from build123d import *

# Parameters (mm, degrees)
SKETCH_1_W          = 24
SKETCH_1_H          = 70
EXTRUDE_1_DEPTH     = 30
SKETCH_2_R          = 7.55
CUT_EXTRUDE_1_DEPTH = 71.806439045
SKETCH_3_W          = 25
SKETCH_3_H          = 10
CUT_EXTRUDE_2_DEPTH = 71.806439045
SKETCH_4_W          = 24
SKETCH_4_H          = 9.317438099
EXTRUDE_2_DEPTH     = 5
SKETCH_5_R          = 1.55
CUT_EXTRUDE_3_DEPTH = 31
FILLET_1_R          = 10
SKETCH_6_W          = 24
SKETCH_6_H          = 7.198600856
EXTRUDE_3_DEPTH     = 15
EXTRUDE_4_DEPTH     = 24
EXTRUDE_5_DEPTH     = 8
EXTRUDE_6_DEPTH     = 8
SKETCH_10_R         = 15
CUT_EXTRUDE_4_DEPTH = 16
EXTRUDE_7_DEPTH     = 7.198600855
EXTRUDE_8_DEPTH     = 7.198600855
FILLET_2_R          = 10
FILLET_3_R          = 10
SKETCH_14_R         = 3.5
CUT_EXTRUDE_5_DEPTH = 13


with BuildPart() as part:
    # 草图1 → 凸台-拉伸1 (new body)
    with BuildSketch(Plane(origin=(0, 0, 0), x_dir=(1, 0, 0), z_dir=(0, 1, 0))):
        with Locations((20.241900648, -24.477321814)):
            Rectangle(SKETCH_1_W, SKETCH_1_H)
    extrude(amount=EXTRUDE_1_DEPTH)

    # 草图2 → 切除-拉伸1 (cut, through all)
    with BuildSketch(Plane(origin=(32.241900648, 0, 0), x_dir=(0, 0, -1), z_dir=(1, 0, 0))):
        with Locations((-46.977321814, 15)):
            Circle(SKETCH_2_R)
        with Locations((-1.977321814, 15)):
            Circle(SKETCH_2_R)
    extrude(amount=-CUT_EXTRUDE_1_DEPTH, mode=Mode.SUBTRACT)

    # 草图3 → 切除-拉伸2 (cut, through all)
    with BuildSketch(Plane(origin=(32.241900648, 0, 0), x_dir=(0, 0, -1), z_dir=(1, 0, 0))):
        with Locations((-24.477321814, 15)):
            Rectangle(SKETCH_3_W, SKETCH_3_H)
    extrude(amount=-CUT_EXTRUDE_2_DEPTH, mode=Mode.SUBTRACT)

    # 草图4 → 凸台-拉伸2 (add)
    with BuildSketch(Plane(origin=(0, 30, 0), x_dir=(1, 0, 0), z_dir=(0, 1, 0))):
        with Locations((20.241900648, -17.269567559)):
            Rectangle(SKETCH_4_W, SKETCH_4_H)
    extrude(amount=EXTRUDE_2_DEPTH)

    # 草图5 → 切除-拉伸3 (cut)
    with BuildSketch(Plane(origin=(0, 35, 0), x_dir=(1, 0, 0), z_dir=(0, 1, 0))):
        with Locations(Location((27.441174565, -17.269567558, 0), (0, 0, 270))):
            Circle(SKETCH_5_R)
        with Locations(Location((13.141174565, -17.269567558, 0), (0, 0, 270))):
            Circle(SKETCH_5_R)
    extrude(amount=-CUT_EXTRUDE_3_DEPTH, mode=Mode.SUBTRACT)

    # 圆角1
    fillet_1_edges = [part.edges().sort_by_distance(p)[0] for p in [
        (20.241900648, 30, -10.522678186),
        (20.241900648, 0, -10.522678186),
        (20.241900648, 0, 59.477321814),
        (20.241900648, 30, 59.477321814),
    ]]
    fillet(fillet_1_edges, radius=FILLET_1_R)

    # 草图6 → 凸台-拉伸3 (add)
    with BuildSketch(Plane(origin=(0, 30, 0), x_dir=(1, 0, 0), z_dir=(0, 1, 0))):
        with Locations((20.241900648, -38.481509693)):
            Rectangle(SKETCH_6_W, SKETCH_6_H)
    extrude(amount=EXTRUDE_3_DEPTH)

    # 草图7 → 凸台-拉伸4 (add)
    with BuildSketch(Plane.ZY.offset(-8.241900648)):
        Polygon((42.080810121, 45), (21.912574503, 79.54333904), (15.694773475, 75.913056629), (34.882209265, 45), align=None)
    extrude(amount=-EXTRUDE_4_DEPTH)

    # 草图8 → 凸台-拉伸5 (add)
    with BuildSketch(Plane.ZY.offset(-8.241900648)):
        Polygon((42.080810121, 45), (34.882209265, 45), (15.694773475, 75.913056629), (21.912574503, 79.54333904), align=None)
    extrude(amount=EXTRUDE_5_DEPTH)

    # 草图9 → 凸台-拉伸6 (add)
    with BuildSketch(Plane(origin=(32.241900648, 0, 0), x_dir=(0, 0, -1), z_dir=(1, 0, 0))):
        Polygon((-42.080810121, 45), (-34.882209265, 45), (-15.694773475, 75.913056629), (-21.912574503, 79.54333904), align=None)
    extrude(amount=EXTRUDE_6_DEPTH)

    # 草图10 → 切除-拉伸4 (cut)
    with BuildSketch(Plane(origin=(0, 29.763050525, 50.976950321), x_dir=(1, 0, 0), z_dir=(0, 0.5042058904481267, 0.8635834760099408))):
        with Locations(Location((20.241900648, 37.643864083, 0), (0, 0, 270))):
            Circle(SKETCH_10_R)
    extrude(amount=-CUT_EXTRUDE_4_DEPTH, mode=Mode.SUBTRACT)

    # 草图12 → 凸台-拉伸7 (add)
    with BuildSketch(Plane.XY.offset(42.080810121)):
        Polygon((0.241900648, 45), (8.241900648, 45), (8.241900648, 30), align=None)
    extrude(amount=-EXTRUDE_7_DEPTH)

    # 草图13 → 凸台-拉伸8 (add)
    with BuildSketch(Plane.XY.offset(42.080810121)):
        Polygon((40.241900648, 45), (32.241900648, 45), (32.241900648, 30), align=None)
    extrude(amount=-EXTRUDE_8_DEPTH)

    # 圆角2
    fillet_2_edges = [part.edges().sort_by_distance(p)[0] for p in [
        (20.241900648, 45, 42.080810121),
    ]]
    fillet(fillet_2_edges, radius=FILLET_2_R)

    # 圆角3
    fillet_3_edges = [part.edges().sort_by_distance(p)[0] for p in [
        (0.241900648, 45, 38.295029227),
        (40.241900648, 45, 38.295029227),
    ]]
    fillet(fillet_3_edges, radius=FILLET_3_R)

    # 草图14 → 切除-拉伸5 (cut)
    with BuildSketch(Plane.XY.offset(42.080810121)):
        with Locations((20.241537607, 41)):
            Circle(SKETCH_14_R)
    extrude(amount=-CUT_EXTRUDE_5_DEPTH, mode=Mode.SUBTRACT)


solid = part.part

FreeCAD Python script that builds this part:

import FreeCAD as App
import Part
import Sketcher

V = App.Vector
Q = App.Units.Quantity


def edges_at(feature, points):
    """Names of the edges that pass closest to the given points."""
    edges = feature.Shape.Edges
    near = lambda p: min(range(len(edges)), key=lambda i: edges[i].distToShape(Part.Vertex(*p))[0])
    return sorted({f"Edge{near(p) + 1}" for p in points})

doc = App.newDocument("Part")
body = doc.addObject("PartDesign::Body", "Body")

# Sketch on XZ plane
sketch1 = doc.addObject("Sketcher::SketchObject", "Sketch")
body.addObject(sketch1)
sketch1.AttachmentSupport = (doc.XZ_Plane, [""])
sketch1.MapMode = "FlatFace"
sketch1.addGeometry(Part.LineSegment(V(8, -11, 0), V(8, 59, 0)), False)
sketch1.addGeometry(Part.LineSegment(V(8, 59, 0), V(32, 59, 0)), False)
sketch1.addGeometry(Part.LineSegment(V(32, 59, 0), V(32, -11, 0)), False)
sketch1.addGeometry(Part.LineSegment(V(32, -11, 0), V(8, -11, 0)), False)
sketch1.addConstraint(Sketcher.Constraint("Coincident", 0, 2, 1, 1))
sketch1.addConstraint(Sketcher.Constraint("Coincident", 1, 2, 2, 1))
sketch1.addConstraint(Sketcher.Constraint("Coincident", 2, 2, 3, 1))
sketch1.addConstraint(Sketcher.Constraint("Coincident", 3, 2, 0, 1))
sketch1.addConstraint(Sketcher.Constraint("Vertical", 0))
sketch1.addConstraint(Sketcher.Constraint("Horizontal", 1))
sketch1.addConstraint(Sketcher.Constraint("Vertical", 2))
sketch1.addConstraint(Sketcher.Constraint("Horizontal", 3))
sketch1.addConstraint(Sketcher.Constraint("DistanceX", 1, 1, 1, 2, Q("24 mm")))
sketch1.addConstraint(Sketcher.Constraint("DistanceY", 0, 1, 0, 2, Q("70 mm")))
sketch1.addConstraint(Sketcher.Constraint("DistanceX", -1, 1, 0, 2, Q("8.241901 mm")))
sketch1.addConstraint(Sketcher.Constraint("DistanceY", -1, 1, 0, 2, Q("59.477322 mm")))
pad1 = doc.addObject("PartDesign::Pad", "Pad")
body.addObject(pad1)
pad1.Profile = sketch1
pad1.Length = 30
pad1.Reversed = True

# Sketch on YZ plane
sketch2 = doc.addObject("Sketcher::SketchObject", "Sketch001")
body.addObject(sketch2)
sketch2.AttachmentSupport = (doc.YZ_Plane, [""])
sketch2.MapMode = "FlatFace"
sketch2.AttachmentOffset = App.Placement(V(0, 0, 32.241901), App.Rotation())
sketch2.addGeometry(Part.Circle(V(15, 47, 0), V(0, 0, 1), 8), False)
sketch2.addGeometry(Part.Circle(V(15, 2, 0), V(0, 0, 1), 8), False)
sketch2.addConstraint(Sketcher.Constraint("Equal", 0, 1))
sketch2.addConstraint(Sketcher.Constraint("Vertical", 0, 3, 1, 3))
sketch2.addConstraint(Sketcher.Constraint("Diameter", 0, Q("15.1 mm")))
sketch2.addConstraint(Sketcher.Constraint("DistanceX", -1, 1, 0, 3, Q("15 mm")))
sketch2.addConstraint(Sketcher.Constraint("DistanceY", 1, 3, 0, 3, Q("45 mm")))
sketch2.addConstraint(Sketcher.Constraint("DistanceY", -1, 1, 0, 3, Q("46.977322 mm")))
pocket1 = doc.addObject("PartDesign::Pocket", "Pocket")
body.addObject(pocket1)
pocket1.Profile = sketch2
pocket1.Type = "ThroughAll"

# Sketch on YZ plane
sketch3 = doc.addObject("Sketcher::SketchObject", "Sketch002")
body.addObject(sketch3)
sketch3.AttachmentSupport = (doc.YZ_Plane, [""])
sketch3.MapMode = "FlatFace"
sketch3.AttachmentOffset = App.Placement(V(0, 0, 32.241901), App.Rotation())
sketch3.addGeometry(Part.LineSegment(V(20, 37, 0), V(10, 37, 0)), False)
sketch3.addGeometry(Part.LineSegment(V(10, 37, 0), V(10, 12, 0)), False)
sketch3.addGeometry(Part.LineSegment(V(10, 12, 0), V(20, 12, 0)), False)
sketch3.addGeometry(Part.LineSegment(V(20, 12, 0), V(20, 37, 0)), False)
sketch3.addConstraint(Sketcher.Constraint("Coincident", 0, 2, 1, 1))
sketch3.addConstraint(Sketcher.Constraint("Coincident", 1, 2, 2, 1))
sketch3.addConstraint(Sketcher.Constraint("Coincident", 2, 2, 3, 1))
sketch3.addConstraint(Sketcher.Constraint("Coincident", 3, 2, 0, 1))
sketch3.addConstraint(Sketcher.Constraint("Horizontal", 0))
sketch3.addConstraint(Sketcher.Constraint("Vertical", 1))
sketch3.addConstraint(Sketcher.Constraint("Horizontal", 2))
sketch3.addConstraint(Sketcher.Constraint("Vertical", 3))
sketch3.addConstraint(Sketcher.Constraint("DistanceX", 0, 2, 0, 1, Q("10 mm")))
sketch3.addConstraint(Sketcher.Constraint("DistanceY", 1, 2, 1, 1, Q("25 mm")))
sketch3.addConstraint(Sketcher.Constraint("DistanceX", -1, 1, 0, 2, Q("10 mm")))
sketch3.addConstraint(Sketcher.Constraint("DistanceY", -1, 1, 0, 2, Q("36.977322 mm")))
pocket2 = doc.addObject("PartDesign::Pocket", "Pocket001")
body.addObject(pocket2)
pocket2.Profile = sketch3
pocket2.Type = "ThroughAll"

# Sketch on XZ plane
sketch4 = doc.addObject("Sketcher::SketchObject", "Sketch003")
body.addObject(sketch4)
sketch4.AttachmentSupport = (doc.XZ_Plane, [""])
sketch4.MapMode = "FlatFace"
sketch4.AttachmentOffset = App.Placement(V(0, 0, -30), App.Rotation())
sketch4.addGeometry(Part.LineSegment(V(8, 13, 0), V(8, 22, 0)), False)
sketch4.addGeometry(Part.LineSegment(V(8, 22, 0), V(32, 22, 0)), False)
sketch4.addGeometry(Part.LineSegment(V(32, 22, 0), V(32, 13, 0)), False)
sketch4.addGeometry(Part.LineSegment(V(32, 13, 0), V(8, 13, 0)), False)
sketch4.addConstraint(Sketcher.Constraint("Coincident", 0, 2, 1, 1))
sketch4.addConstraint(Sketcher.Constraint("Coincident", 1, 2, 2, 1))
sketch4.addConstraint(Sketcher.Constraint("Coincident", 2, 2, 3, 1))
sketch4.addConstraint(Sketcher.Constraint("Coincident", 3, 2, 0, 1))
sketch4.addConstraint(Sketcher.Constraint("Vertical", 0))
sketch4.addConstraint(Sketcher.Constraint("Horizontal", 1))
sketch4.addConstraint(Sketcher.Constraint("Vertical", 2))
sketch4.addConstraint(Sketcher.Constraint("Horizontal", 3))
sketch4.addConstraint(Sketcher.Constraint("DistanceX", 1, 1, 1, 2, Q("24 mm")))
sketch4.addConstraint(Sketcher.Constraint("DistanceY", 0, 1, 0, 2, Q("9.317438 mm")))
sketch4.addConstraint(Sketcher.Constraint("DistanceX", -1, 1, 0, 2, Q("8.241901 mm")))
sketch4.addConstraint(Sketcher.Constraint("DistanceY", -1, 1, 2, 2, Q("12.610849 mm")))
pad2 = doc.addObject("PartDesign::Pad", "Pad001")
body.addObject(pad2)
pad2.Profile = sketch4
pad2.Length = 5
pad2.Reversed = True

# Sketch on XZ plane
sketch5 = doc.addObject("Sketcher::SketchObject", "Sketch004")
body.addObject(sketch5)
sketch5.AttachmentSupport = (doc.XZ_Plane, [""])
sketch5.MapMode = "FlatFace"
sketch5.AttachmentOffset = App.Placement(V(0, 0, -35), App.Rotation())
sketch5.addGeometry(Part.Circle(V(27.4, 17.3, 0), V(0, 0, 1), 1.6), False)
sketch5.addGeometry(Part.Circle(V(13.1, 17.3, 0), V(0, 0, 1), 1.6), False)
sketch5.addConstraint(Sketcher.Constraint("Equal", 0, 1))
sketch5.addConstraint(Sketcher.Constraint("Horizontal", 0, 3, 1, 3))
sketch5.addConstraint(Sketcher.Constraint("Diameter", 0, Q("3.1 mm")))
sketch5.addConstraint(Sketcher.Constraint("DistanceX", 1, 3, 0, 3, Q("14.3 mm")))
sketch5.addConstraint(Sketcher.Constraint("DistanceX", -1, 1, 0, 3, Q("27.441175 mm")))
sketch5.addConstraint(Sketcher.Constraint("DistanceY", -1, 1, 0, 3, Q("17.269568 mm")))
pocket3 = doc.addObject("PartDesign::Pocket", "Pocket002")
body.addObject(pocket3)
pocket3.Profile = sketch5
pocket3.Length = 31
pocket3.Reversed = True
doc.recompute()

fillet = doc.addObject("PartDesign::Fillet", "Fillet")
body.addObject(fillet)
fillet.Base = (pocket3, edges_at(pocket3, [
    (20.242, 30, -10.523),
    (20.242, 0, -10.523),
    (20.242, 0, 59.477),
    (20.242, 30, 59.477),
]))
fillet.Radius = 10

# Sketch on XZ plane
sketch6 = doc.addObject("Sketcher::SketchObject", "Sketch005")
body.addObject(sketch6)
sketch6.AttachmentSupport = (doc.XZ_Plane, [""])
sketch6.MapMode = "FlatFace"
sketch6.AttachmentOffset = App.Placement(V(0, 0, -30), App.Rotation())
sketch6.addGeometry(Part.LineSegment(V(8, 35, 0), V(8, 42, 0)), False)
sketch6.addGeometry(Part.LineSegment(V(8, 42, 0), V(32, 42, 0)), False)
sketch6.addGeometry(Part.LineSegment(V(32, 42, 0), V(32, 35, 0)), False)
sketch6.addGeometry(Part.LineSegment(V(32, 35, 0), V(8, 35, 0)), False)
sketch6.addConstraint(Sketcher.Constraint("Coincident", 0, 2, 1, 1))
sketch6.addConstraint(Sketcher.Constraint("Coincident", 1, 2, 2, 1))
sketch6.addConstraint(Sketcher.Constraint("Coincident", 2, 2, 3, 1))
sketch6.addConstraint(Sketcher.Constraint("Coincident", 3, 2, 0, 1))
sketch6.addConstraint(Sketcher.Constraint("Vertical", 0))
sketch6.addConstraint(Sketcher.Constraint("Horizontal", 1))
sketch6.addConstraint(Sketcher.Constraint("Vertical", 2))
sketch6.addConstraint(Sketcher.Constraint("Horizontal", 3))
sketch6.addConstraint(Sketcher.Constraint("DistanceX", 1, 1, 1, 2, Q("24 mm")))
sketch6.addConstraint(Sketcher.Constraint("DistanceY", 0, 1, 0, 2, Q("7.198601 mm")))
sketch6.addConstraint(Sketcher.Constraint("DistanceX", -1, 1, 0, 2, Q("8.241901 mm")))
sketch6.addConstraint(Sketcher.Constraint("DistanceY", -1, 1, 0, 2, Q("42.08081 mm")))
pad3 = doc.addObject("PartDesign::Pad", "Pad002")
body.addObject(pad3)
pad3.Profile = sketch6
pad3.Length = 15
pad3.Reversed = True

# Sketch on YZ plane
sketch7 = doc.addObject("Sketcher::SketchObject", "Sketch006")
body.addObject(sketch7)
sketch7.AttachmentSupport = (doc.YZ_Plane, [""])
sketch7.MapMode = "FlatFace"
sketch7.AttachmentOffset = App.Placement(V(0, 0, 8.241901), App.Rotation())
sketch7.addGeometry(Part.LineSegment(V(45, 42, 0), V(80, 22, 0)), False)
sketch7.addGeometry(Part.LineSegment(V(80, 22, 0), V(76, 16, 0)), False)
sketch7.addGeometry(Part.LineSegment(V(76, 16, 0), V(45, 35, 0)), False)
sketch7.addGeometry(Part.LineSegment(V(45, 35, 0), V(45, 42, 0)), False)
sketch7.addConstraint(Sketcher.Constraint("Coincident", 0, 2, 1, 1))
sketch7.addConstraint(Sketcher.Constraint("Coincident", 1, 2, 2, 1))
sketch7.addConstraint(Sketcher.Constraint("Coincident", 2, 2, 3, 1))
sketch7.addConstraint(Sketcher.Constraint("Coincident", 3, 2, 0, 1))
sketch7.addConstraint(Sketcher.Constraint("Vertical", 3))
sketch7.addConstraint(Sketcher.Constraint("Perpendicular", 0, 1))
sketch7.addConstraint(Sketcher.Constraint("Distance", 0, Q("40 mm")))
sketch7.addConstraint(Sketcher.Constraint("DistanceX", -1, 1, 2, 2, Q("45 mm")))
sketch7.addConstraint(Sketcher.Constraint("Distance", 1, Q("7.2 mm")))
sketch7.addConstraint(Sketcher.Constraint("DistanceY", 3, 1, 3, 2, Q("7.198601 mm")))
sketch7.addConstraint(Sketcher.Constraint("DistanceY", 1, 2, 0, 2, Q("6.217801 mm")))
sketch7.addConstraint(Sketcher.Constraint("DistanceY", -1, 1, 2, 2, Q("34.882209 mm")))
pad4 = doc.addObject("PartDesign::Pad", "Pad003")
body.addObject(pad4)
pad4.Profile = sketch7
pad4.Length = 24

# Sketch on YZ plane
sketch8 = doc.addObject("Sketcher::SketchObject", "Sketch007")
body.addObject(sketch8)
sketch8.AttachmentSupport = (doc.YZ_Plane, [""])
sketch8.MapMode = "FlatFace"
sketch8.AttachmentOffset = App.Placement(V(0, 0, 8.241901), App.Rotation())
sketch8.addGeometry(Part.LineSegment(V(45, 35, 0), V(45, 42, 0)), False)
sketch8.addGeometry(Part.LineSegment(V(45, 42, 0), V(80, 22, 0)), False)
sketch8.addGeometry(Part.LineSegment(V(80, 22, 0), V(76, 16, 0)), False)
sketch8.addGeometry(Part.LineSegment(V(76, 16, 0), V(45, 35, 0)), False)
sketch8.addConstraint(Sketcher.Constraint("Coincident", 0, 2, 1, 1))
sketch8.addConstraint(Sketcher.Constraint("Coincident", 1, 2, 2, 1))
sketch8.addConstraint(Sketcher.Constraint("Coincident", 2, 2, 3, 1))
sketch8.addConstraint(Sketcher.Constraint("Coincident", 3, 2, 0, 1))
sketch8.addConstraint(Sketcher.Constraint("Vertical", 0))
sketch8.addConstraint(Sketcher.Constraint("Perpendicular", 1, 2))
sketch8.addConstraint(Sketcher.Constraint("Distance", 1, Q("40 mm")))
sketch8.addConstraint(Sketcher.Constraint("DistanceX", -1, 1, 0, 2, Q("45 mm")))
sketch8.addConstraint(Sketcher.Constraint("Distance", 2, Q("7.2 mm")))
sketch8.addConstraint(Sketcher.Constraint("DistanceY", 0, 1, 0, 2, Q("7.198601 mm")))
sketch8.addConstraint(Sketcher.Constraint("DistanceY", 2, 2, 1, 2, Q("6.217801 mm")))
sketch8.addConstraint(Sketcher.Constraint("DistanceY", -1, 1, 0, 2, Q("42.08081 mm")))
pad5 = doc.addObject("PartDesign::Pad", "Pad004")
body.addObject(pad5)
pad5.Profile = sketch8
pad5.Length = 8
pad5.Reversed = True

# Sketch on YZ plane
sketch9 = doc.addObject("Sketcher::SketchObject", "Sketch008")
body.addObject(sketch9)
sketch9.AttachmentSupport = (doc.YZ_Plane, [""])
sketch9.MapMode = "FlatFace"
sketch9.AttachmentOffset = App.Placement(V(0, 0, 32.241901), App.Rotation())
sketch9.addGeometry(Part.LineSegment(V(45, 42, 0), V(45, 35, 0)), False)
sketch9.addGeometry(Part.LineSegment(V(45, 35, 0), V(76, 16, 0)), False)
sketch9.addGeometry(Part.LineSegment(V(76, 16, 0), V(80, 22, 0)), False)
sketch9.addGeometry(Part.LineSegment(V(80, 22, 0), V(45, 42, 0)), False)
sketch9.addConstraint(Sketcher.Constraint("Coincident", 0, 2, 1, 1))
sketch9.addConstraint(Sketcher.Constraint("Coincident", 1, 2, 2, 1))
sketch9.addConstraint(Sketcher.Constraint("Coincident", 2, 2, 3, 1))
sketch9.addConstraint(Sketcher.Constraint("Coincident", 3, 2, 0, 1))
sketch9.addConstraint(Sketcher.Constraint("Vertical", 0))
sketch9.addConstraint(Sketcher.Constraint("Perpendicular", 2, 3))
sketch9.addConstraint(Sketcher.Constraint("Distance", 3, Q("40 mm")))
sketch9.addConstraint(Sketcher.Constraint("DistanceX", -1, 1, 0, 2, Q("45 mm")))
sketch9.addConstraint(Sketcher.Constraint("Distance", 2, Q("7.2 mm")))
sketch9.addConstraint(Sketcher.Constraint("DistanceY", 0, 2, 0, 1, Q("7.198601 mm")))
sketch9.addConstraint(Sketcher.Constraint("DistanceY", 1, 2, 2, 2, Q("6.217801 mm")))
sketch9.addConstraint(Sketcher.Constraint("DistanceY", -1, 1, 0, 2, Q("34.882209 mm")))
pad6 = doc.addObject("PartDesign::Pad", "Pad005")
body.addObject(pad6)
pad6.Profile = sketch9
pad6.Length = 8

# Sketch on an angled plane
sketch10 = doc.addObject("Sketcher::SketchObject", "Sketch009")
body.addObject(sketch10)
sketch10.Placement = App.Placement(V(0, 29.763051, 50.97695), App.Rotation(V(1, 0, 0), V(0, 0.863583476, -0.50420589), V(0, 0.50420589, 0.863583476), "ZXY"))
sketch10.addGeometry(Part.Circle(V(20, 38, 0), V(0, 0, 1), 15), False)
sketch10.addConstraint(Sketcher.Constraint("Diameter", 0, Q("30 mm")))
sketch10.addConstraint(Sketcher.Constraint("DistanceX", -1, 1, 0, 3, Q("20.241901 mm")))
sketch10.addConstraint(Sketcher.Constraint("DistanceY", -1, 1, 0, 3, Q("37.643864 mm")))
pocket4 = doc.addObject("PartDesign::Pocket", "Pocket003")
body.addObject(pocket4)
pocket4.Profile = sketch10
pocket4.Length = 16

# Sketch on XY plane
sketch11 = doc.addObject("Sketcher::SketchObject", "Sketch010")
body.addObject(sketch11)
sketch11.AttachmentSupport = (doc.XY_Plane, [""])
sketch11.MapMode = "FlatFace"
sketch11.AttachmentOffset = App.Placement(V(0, 0, 42.08081), App.Rotation())
sketch11.addGeometry(Part.LineSegment(V(8, 45, 0), V(0, 45, 0)), False)
sketch11.addGeometry(Part.LineSegment(V(0, 45, 0), V(8, 30, 0)), False)
sketch11.addGeometry(Part.LineSegment(V(8, 30, 0), V(8, 45, 0)), False)
sketch11.addConstraint(Sketcher.Constraint("Coincident", 0, 2, 1, 1))
sketch11.addConstraint(Sketcher.Constraint("Coincident", 1, 2, 2, 1))
sketch11.addConstraint(Sketcher.Constraint("Coincident", 2, 2, 0, 1))
sketch11.addConstraint(Sketcher.Constraint("Horizontal", 0))
sketch11.addConstraint(Sketcher.Constraint("Vertical", 2))
sketch11.addConstraint(Sketcher.Constraint("DistanceX", 0, 2, 0, 1, Q("8 mm")))
sketch11.addConstraint(Sketcher.Constraint("DistanceY", 2, 1, 2, 2, Q("15 mm")))
sketch11.addConstraint(Sketcher.Constraint("DistanceY", -1, 1, 0, 2, Q("45 mm")))
sketch11.addConstraint(Sketcher.Constraint("DistanceX", -1, 1, 0, 2, Q("0.241901 mm")))
pad7 = doc.addObject("PartDesign::Pad", "Pad006")
body.addObject(pad7)
pad7.Profile = sketch11
pad7.Length = 7.198601
pad7.Reversed = True

# Sketch on XY plane
sketch12 = doc.addObject("Sketcher::SketchObject", "Sketch011")
body.addObject(sketch12)
sketch12.AttachmentSupport = (doc.XY_Plane, [""])
sketch12.MapMode = "FlatFace"
sketch12.AttachmentOffset = App.Placement(V(0, 0, 42.08081), App.Rotation())
sketch12.addGeometry(Part.LineSegment(V(40, 45, 0), V(32, 45, 0)), False)
sketch12.addGeometry(Part.LineSegment(V(32, 45, 0), V(32, 30, 0)), False)
sketch12.addGeometry(Part.LineSegment(V(32, 30, 0), V(40, 45, 0)), False)
sketch12.addConstraint(Sketcher.Constraint("Coincident", 0, 2, 1, 1))
sketch12.addConstraint(Sketcher.Constraint("Coincident", 1, 2, 2, 1))
sketch12.addConstraint(Sketcher.Constraint("Coincident", 2, 2, 0, 1))
sketch12.addConstraint(Sketcher.Constraint("Horizontal", 0))
sketch12.addConstraint(Sketcher.Constraint("Vertical", 1))
sketch12.addConstraint(Sketcher.Constraint("DistanceX", 0, 2, 0, 1, Q("8 mm")))
sketch12.addConstraint(Sketcher.Constraint("DistanceY", 1, 2, 1, 1, Q("15 mm")))
sketch12.addConstraint(Sketcher.Constraint("DistanceY", -1, 1, 0, 2, Q("45 mm")))
sketch12.addConstraint(Sketcher.Constraint("DistanceX", -1, 1, 0, 2, Q("32.241901 mm")))
pad8 = doc.addObject("PartDesign::Pad", "Pad007")
body.addObject(pad8)
pad8.Profile = sketch12
pad8.Length = 7.198601
pad8.Reversed = True
doc.recompute()

fillet2 = doc.addObject("PartDesign::Fillet", "Fillet001")
body.addObject(fillet2)
fillet2.Base = (pad8, edges_at(pad8, [(20.242, 45, 42.081)]))
fillet2.Radius = 10
doc.recompute()

fillet3 = doc.addObject("PartDesign::Fillet", "Fillet002")
body.addObject(fillet3)
fillet3.Base = (fillet2, edges_at(fillet2, [(0.242, 45, 38.295), (40.242, 45, 38.295)]))
fillet3.Radius = 10

# Sketch on XY plane
sketch13 = doc.addObject("Sketcher::SketchObject", "Sketch012")
body.addObject(sketch13)
sketch13.AttachmentSupport = (doc.XY_Plane, [""])
sketch13.MapMode = "FlatFace"
sketch13.AttachmentOffset = App.Placement(V(0, 0, 42.08081), App.Rotation())
sketch13.addGeometry(Part.Circle(V(20.2, 41, 0), V(0, 0, 1), 3.5), False)
sketch13.addConstraint(Sketcher.Constraint("Diameter", 0, Q("7 mm")))
sketch13.addConstraint(Sketcher.Constraint("DistanceY", -1, 1, 0, 3, Q("41 mm")))
sketch13.addConstraint(Sketcher.Constraint("DistanceX", -1, 1, 0, 3, Q("20.241538 mm")))
pocket5 = doc.addObject("PartDesign::Pocket", "Pocket004")
body.addObject(pocket5)
pocket5.Profile = sketch13
pocket5.Length = 13

doc.recompute()
